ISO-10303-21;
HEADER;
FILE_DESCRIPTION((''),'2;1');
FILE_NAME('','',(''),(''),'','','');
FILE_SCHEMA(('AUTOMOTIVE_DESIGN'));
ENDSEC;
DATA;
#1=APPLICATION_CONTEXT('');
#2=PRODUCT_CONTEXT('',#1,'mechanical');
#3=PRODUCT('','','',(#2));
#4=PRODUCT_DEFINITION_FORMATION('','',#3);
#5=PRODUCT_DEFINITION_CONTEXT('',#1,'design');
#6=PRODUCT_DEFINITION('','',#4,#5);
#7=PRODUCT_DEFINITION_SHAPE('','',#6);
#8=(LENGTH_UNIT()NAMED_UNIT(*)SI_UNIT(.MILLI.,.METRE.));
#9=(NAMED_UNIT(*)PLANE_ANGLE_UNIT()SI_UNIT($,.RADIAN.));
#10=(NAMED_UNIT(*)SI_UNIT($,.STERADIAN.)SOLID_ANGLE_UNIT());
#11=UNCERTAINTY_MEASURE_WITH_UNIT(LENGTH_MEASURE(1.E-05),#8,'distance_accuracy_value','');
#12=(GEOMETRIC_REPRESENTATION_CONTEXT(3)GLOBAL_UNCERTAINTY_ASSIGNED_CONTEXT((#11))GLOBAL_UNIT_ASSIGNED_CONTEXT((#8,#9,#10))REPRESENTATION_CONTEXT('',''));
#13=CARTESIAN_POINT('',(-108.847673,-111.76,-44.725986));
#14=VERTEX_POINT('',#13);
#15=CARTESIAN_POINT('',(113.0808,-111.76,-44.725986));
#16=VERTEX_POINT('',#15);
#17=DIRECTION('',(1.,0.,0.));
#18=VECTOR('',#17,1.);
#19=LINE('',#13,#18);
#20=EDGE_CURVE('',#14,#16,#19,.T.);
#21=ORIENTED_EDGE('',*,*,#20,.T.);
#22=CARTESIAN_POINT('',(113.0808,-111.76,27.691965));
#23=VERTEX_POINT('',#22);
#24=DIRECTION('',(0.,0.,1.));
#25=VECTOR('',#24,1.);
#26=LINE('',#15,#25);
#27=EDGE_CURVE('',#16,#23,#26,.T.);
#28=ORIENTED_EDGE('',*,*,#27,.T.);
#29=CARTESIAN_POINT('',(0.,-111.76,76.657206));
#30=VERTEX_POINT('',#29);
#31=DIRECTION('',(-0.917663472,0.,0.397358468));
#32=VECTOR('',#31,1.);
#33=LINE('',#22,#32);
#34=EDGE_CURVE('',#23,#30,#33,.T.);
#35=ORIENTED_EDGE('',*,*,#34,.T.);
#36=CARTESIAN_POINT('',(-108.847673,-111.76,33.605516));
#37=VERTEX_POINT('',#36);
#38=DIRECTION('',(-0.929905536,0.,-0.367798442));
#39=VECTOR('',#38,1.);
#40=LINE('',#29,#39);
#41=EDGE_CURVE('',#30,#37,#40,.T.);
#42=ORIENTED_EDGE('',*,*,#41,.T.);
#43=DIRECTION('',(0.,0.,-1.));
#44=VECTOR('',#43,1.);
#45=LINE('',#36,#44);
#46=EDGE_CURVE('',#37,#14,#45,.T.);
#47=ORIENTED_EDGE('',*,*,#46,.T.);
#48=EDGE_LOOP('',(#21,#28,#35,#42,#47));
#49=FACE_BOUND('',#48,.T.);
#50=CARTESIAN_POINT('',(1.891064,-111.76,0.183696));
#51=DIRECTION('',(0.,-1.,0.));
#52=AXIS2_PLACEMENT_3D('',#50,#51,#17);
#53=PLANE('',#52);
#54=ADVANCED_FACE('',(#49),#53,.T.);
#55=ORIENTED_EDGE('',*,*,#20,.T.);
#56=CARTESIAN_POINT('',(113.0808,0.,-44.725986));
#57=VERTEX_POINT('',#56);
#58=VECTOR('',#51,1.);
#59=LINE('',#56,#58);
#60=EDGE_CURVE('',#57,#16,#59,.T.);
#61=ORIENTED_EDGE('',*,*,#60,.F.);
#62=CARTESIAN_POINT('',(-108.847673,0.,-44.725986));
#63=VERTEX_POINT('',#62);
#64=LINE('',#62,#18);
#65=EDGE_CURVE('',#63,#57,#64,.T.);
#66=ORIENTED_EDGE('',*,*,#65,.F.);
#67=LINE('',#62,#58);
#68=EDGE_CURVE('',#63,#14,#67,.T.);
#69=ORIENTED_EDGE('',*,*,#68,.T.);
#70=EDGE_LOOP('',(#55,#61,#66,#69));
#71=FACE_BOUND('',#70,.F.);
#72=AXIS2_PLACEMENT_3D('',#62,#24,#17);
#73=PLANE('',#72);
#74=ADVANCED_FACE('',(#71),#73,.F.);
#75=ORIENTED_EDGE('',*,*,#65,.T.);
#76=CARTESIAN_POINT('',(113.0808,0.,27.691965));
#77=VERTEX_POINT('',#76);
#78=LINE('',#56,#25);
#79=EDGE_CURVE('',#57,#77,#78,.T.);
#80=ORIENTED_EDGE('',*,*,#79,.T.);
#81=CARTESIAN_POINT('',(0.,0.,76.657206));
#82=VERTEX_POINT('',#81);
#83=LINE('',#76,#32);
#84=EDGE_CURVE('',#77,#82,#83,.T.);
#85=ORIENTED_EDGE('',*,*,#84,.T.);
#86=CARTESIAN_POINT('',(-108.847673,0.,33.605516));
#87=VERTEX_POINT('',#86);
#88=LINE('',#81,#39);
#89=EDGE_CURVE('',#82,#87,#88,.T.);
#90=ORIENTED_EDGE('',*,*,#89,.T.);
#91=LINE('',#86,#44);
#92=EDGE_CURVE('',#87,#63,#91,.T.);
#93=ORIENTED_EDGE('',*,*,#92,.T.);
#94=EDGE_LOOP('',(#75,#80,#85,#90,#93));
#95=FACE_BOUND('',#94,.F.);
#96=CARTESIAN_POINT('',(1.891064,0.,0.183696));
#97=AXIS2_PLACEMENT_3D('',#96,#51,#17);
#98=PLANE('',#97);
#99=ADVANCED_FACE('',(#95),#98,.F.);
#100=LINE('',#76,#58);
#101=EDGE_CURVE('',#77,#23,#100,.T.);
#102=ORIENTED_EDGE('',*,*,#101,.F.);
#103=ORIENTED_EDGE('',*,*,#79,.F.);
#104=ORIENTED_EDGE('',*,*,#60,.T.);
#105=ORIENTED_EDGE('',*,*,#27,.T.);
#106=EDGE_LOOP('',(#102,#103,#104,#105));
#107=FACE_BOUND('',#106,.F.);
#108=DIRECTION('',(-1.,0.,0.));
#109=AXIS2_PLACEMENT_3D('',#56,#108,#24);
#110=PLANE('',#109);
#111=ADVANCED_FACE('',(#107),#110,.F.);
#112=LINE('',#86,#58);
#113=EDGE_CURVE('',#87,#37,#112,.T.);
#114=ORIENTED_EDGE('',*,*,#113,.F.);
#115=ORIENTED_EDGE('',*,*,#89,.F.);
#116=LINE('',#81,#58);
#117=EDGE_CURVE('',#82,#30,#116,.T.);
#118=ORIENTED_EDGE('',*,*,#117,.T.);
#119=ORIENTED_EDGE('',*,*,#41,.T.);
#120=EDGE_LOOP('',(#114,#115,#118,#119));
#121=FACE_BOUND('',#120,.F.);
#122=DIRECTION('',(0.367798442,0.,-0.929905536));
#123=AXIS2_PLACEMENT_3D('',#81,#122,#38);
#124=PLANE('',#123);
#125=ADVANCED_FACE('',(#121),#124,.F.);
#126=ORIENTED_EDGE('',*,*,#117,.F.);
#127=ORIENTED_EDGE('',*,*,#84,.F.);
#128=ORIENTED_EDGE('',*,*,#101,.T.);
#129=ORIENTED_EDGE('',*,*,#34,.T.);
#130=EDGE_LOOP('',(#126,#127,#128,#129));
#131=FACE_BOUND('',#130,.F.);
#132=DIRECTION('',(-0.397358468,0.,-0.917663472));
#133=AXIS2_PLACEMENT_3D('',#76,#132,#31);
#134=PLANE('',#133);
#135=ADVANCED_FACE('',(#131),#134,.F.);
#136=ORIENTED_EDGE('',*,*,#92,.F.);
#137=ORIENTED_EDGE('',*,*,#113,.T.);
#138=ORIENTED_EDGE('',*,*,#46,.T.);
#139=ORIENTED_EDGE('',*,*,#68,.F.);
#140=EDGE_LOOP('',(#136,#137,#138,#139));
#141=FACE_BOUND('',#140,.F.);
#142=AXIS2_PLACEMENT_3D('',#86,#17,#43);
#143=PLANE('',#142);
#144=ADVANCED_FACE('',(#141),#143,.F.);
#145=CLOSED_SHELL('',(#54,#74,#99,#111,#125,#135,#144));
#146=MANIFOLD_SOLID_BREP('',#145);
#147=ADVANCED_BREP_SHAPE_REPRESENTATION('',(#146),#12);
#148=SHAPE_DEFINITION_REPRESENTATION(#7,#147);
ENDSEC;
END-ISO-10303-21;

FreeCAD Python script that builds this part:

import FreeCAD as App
import Part
import Sketcher
Q = App.Units.Quantity

doc = App.newDocument("Part")
body = doc.addObject("PartDesign::Body", "Body")

# Sketch on XZ plane
sketch1 = body.newObject("Sketcher::SketchObject", "Sketch")
sketch1.AttachmentSupport = (doc.getObject("XZ_Plane"), [""])
sketch1.MapMode = "FlatFace"
sketch1.addGeometry(Part.LineSegment(App.Vector(113, 28, 0), App.Vector(0, 77, 0)), False)
sketch1.addGeometry(Part.LineSegment(App.Vector(0, 77, 0), App.Vector(-109, 34, 0)), False)
sketch1.addGeometry(Part.LineSegment(App.Vector(-109, 34, 0), App.Vector(-109, -45, 0)), False)
sketch1.addGeometry(Part.LineSegment(App.Vector(-109, -45, 0), App.Vector(113, -45, 0)), False)
sketch1.addGeometry(Part.LineSegment(App.Vector(113, -45, 0), App.Vector(113, 28, 0)), False)
sketch1.addConstraint(Sketcher.Constraint("Coincident", 0, 2, 1, 1))
sketch1.addConstraint(Sketcher.Constraint("Coincident", 1, 2, 2, 1))
sketch1.addConstraint(Sketcher.Constraint("Coincident", 2, 2, 3, 1))
sketch1.addConstraint(Sketcher.Constraint("Coincident", 3, 2, 4, 1))
sketch1.addConstraint(Sketcher.Constraint("Coincident", 4, 2, 0, 1))
sketch1.addConstraint(Sketcher.Constraint("Vertical", 2))
sketch1.addConstraint(Sketcher.Constraint("Horizontal", 3))
sketch1.addConstraint(Sketcher.Constraint("Vertical", 4))
sketch1.addConstraint(Sketcher.Constraint("PointOnObject", 0, 2, -2))
sketch1.addConstraint(Sketcher.Constraint("DistanceX", -1, 1, 3, 2, Q("4.452 in")))
sketch1.addConstraint(Sketcher.Constraint("Distance", 1, 117.052398))
sketch1.addConstraint(Sketcher.Constraint("DistanceY", 4, 1, 4, 2, 72.41795))
sketch1.addConstraint(Sketcher.Constraint("DistanceX", 3, 1, 3, 2, 221.928473))
sketch1.addConstraint(Sketcher.Constraint("DistanceY", 2, 2, 2, 1, 78.331502))
sketch1.addConstraint(Sketcher.Constraint("DistanceY", -1, 1, 0, 2, 76.657206))
pad1 = body.newObject("PartDesign::Pad", "Pad")
pad1.Profile = sketch1
pad1.Length = Q("4.4 in")

doc.recompute()
